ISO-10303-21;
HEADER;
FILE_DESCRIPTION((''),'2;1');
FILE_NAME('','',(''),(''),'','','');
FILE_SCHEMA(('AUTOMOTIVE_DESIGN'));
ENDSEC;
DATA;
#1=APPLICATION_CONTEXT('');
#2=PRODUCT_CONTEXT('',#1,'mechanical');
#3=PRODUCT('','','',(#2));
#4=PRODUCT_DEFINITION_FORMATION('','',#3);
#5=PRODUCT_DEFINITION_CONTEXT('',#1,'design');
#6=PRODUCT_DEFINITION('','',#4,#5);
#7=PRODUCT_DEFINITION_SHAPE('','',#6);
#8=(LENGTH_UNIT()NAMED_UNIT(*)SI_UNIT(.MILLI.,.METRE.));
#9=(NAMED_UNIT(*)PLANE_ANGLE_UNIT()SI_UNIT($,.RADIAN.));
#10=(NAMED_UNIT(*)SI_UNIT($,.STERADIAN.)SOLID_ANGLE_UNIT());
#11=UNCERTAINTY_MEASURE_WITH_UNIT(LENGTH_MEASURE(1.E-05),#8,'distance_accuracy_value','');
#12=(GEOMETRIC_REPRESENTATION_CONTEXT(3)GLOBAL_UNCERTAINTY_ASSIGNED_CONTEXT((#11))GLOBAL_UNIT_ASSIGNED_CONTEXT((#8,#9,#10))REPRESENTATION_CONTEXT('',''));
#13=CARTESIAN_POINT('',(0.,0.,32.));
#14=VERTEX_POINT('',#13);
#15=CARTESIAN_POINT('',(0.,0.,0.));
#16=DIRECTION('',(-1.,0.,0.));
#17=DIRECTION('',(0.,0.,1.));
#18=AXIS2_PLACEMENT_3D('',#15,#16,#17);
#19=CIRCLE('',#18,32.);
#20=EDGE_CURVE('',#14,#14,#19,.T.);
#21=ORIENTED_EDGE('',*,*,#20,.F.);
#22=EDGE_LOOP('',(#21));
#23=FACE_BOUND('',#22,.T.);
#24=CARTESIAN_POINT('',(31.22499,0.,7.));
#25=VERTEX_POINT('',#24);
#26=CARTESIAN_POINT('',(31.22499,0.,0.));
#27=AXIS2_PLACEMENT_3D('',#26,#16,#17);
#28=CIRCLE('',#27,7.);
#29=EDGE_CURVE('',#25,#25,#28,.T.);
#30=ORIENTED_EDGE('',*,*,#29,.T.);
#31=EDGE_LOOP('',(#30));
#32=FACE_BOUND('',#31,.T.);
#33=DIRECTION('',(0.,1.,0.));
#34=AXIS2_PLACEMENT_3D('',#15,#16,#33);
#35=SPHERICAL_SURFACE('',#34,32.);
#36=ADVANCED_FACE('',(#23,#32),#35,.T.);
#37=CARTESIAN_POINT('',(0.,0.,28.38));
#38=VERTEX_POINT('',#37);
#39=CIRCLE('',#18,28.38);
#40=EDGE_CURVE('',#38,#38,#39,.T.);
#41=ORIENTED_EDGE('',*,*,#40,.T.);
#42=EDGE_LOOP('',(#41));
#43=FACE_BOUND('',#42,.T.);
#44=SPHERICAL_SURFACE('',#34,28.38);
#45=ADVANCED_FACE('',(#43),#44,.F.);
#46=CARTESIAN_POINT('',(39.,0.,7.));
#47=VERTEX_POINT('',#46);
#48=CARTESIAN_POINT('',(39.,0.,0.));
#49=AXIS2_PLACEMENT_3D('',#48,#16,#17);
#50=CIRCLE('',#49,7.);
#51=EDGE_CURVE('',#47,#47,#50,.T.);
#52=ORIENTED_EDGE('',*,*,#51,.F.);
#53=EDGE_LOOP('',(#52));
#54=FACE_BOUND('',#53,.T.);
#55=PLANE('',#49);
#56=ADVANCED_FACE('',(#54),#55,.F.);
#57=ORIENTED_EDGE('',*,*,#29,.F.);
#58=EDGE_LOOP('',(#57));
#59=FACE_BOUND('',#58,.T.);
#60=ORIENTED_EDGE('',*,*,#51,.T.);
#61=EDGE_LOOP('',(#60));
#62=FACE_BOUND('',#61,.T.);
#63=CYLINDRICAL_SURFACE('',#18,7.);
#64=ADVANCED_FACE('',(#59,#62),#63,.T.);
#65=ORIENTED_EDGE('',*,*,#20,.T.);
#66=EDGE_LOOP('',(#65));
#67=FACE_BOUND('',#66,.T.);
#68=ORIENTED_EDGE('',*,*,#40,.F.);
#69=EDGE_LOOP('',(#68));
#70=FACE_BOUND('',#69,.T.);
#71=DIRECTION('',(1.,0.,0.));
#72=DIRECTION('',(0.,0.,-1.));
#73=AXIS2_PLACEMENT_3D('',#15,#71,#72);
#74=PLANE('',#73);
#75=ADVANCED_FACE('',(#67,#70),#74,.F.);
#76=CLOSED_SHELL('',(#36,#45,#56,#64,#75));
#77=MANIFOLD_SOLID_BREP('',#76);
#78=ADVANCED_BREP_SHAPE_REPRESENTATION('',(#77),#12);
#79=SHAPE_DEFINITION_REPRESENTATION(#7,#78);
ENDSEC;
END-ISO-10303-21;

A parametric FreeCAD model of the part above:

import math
import FreeCAD as App
import Part
import Sketcher

V = App.Vector

doc = App.newDocument("Part")
params = doc.addObject("Spreadsheet::Sheet", "Params")
for row, (alias, value) in enumerate([
    ("sketch1_radius", "32 mm"),
    ("sketch1_height", "7 mm"),
    ("sketch1_radius2", "28.38 mm"),
    ("revolution_angle", "360 deg"),
], start=1):
    params.set(f"A{row}", alias)
    params.set(f"B{row}", "=" + value)
    params.setAlias(f"B{row}", alias)

body = doc.addObject("PartDesign::Body", "Body")

sketch1 = doc.addObject("Sketcher::SketchObject", "Sketch")
body.addObject(sketch1)
sketch1.AttachmentSupport = (doc.XY_Plane, [""])
sketch1.MapMode = "FlatFace"
sketch1.addGeometry([
    Part.ArcOfCircle(Part.Circle(V(0, 0, 0), V(0, 0, 1), 28.4), math.radians(0), math.radians(90)),
    Part.LineSegment(V(28.4, 0, 0), V(39, 0, 0)),
    Part.LineSegment(V(39, 0, 0), V(39, 7, 0)),
    Part.LineSegment(V(39, 7, 0), V(31.2, 7, 0)),
    Part.ArcOfCircle(Part.Circle(V(0, 0, 0), V(0, 0, 1), 32), math.radians(13), math.radians(90)),
    Part.LineSegment(V(0, 32, 0), V(0, 28.4, 0)),
], False)
sketch1.addConstraint([
    Sketcher.Constraint("Coincident", 0, 1, 1, 1),
    Sketcher.Constraint("Coincident", 1, 2, 2, 1),
    Sketcher.Constraint("Coincident", 2, 2, 3, 1),
    Sketcher.Constraint("Coincident", 3, 2, 4, 1),
    Sketcher.Constraint("Coincident", 4, 2, 5, 1),
    Sketcher.Constraint("Coincident", 5, 2, 0, 2),
    Sketcher.Constraint("Horizontal", 1),
    Sketcher.Constraint("Vertical", 2),
    Sketcher.Constraint("Horizontal", 3),
    Sketcher.Constraint("Vertical", 5),
    Sketcher.Constraint("Coincident", 0, 3, -1, 1),
    Sketcher.Constraint("Coincident", 4, 3, -1, 1),
    Sketcher.Constraint("PointOnObject", 0, 1, -1),
    Sketcher.Constraint("PointOnObject", 4, 2, -2),
    Sketcher.Constraint("Radius", 4, 32.0),
    Sketcher.Constraint("DistanceY", 2, 1, 2, 2, 7.0),
    Sketcher.Constraint("Radius", 0, 28.38),
    Sketcher.Constraint("DistanceX", -1, 1, 1, 2, 39.0),
])
sketch1.setExpression("Constraints[14]", "Params.sketch1_radius")
sketch1.setExpression("Constraints[15]", "Params.sketch1_height")
sketch1.setExpression("Constraints[16]", "Params.sketch1_radius2")
revolution = doc.addObject("PartDesign::Revolution", "Revolution")
body.addObject(revolution)
revolution.Profile = sketch1
revolution.ReferenceAxis = (sketch1, ["H_Axis"])
revolution.setExpression("Angle", "Params.revolution_angle")

doc.recompute()
